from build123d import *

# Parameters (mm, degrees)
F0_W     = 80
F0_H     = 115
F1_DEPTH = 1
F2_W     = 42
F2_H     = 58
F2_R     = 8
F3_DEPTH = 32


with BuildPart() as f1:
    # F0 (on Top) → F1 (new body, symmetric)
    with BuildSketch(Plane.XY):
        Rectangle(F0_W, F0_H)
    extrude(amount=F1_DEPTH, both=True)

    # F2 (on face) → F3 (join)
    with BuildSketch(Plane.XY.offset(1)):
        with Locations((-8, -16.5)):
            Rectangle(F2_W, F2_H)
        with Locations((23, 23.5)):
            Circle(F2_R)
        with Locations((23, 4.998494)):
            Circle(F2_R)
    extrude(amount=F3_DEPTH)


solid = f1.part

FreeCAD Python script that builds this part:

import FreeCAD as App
import Part
import Sketcher
from FreeCAD import Vector


def add_polygon(sketch, points):
    """Adds a closed chain of lines whose ends are joined by coincident constraints."""
    first, n = sketch.GeometryCount, len(points)
    for a, b in zip(points, points[1:] + points[:1]):
        sketch.addGeometry(Part.LineSegment(App.Vector(*a, 0), App.Vector(*b, 0)), False)
    for i in range(n):
        sketch.addConstraint(Sketcher.Constraint("Coincident", first + i, 2, first + (i + 1) % n, 1))

doc = App.newDocument("Part")
body = doc.addObject("PartDesign::Body", "Body")

# Sketch on XY plane
sketch1 = body.newObject("Sketcher::SketchObject", "Sketch")
sketch1.AttachmentSupport = (doc.getObject("XY_Plane"), [""])
sketch1.MapMode = "FlatFace"
add_polygon(sketch1, [(-40, 58), (-40, -58), (40, -58), (40, 58)])  # lines 0-3
sketch1.addConstraint(Sketcher.Constraint("Vertical", 0))
sketch1.addConstraint(Sketcher.Constraint("Horizontal", 1))
sketch1.addConstraint(Sketcher.Constraint("Vertical", 2))
sketch1.addConstraint(Sketcher.Constraint("Horizontal", 3))
sketch1.addConstraint(Sketcher.Constraint("Symmetric", 0, 2, 2, 2, -1, 1))
sketch1.addConstraint(Sketcher.Constraint("DistanceX", 1, 1, 1, 2, 80.0))
sketch1.addConstraint(Sketcher.Constraint("DistanceY", 0, 2, 0, 1, 115.0))
pad1 = body.newObject("PartDesign::Pad", "Pad")
pad1.Profile = sketch1
pad1.Length = 2
pad1.Midplane = True

# Sketch on XY plane
sketch2 = body.newObject("Sketcher::SketchObject", "Sketch001")
sketch2.AttachmentSupport = (doc.getObject("XY_Plane"), [""])
sketch2.MapMode = "FlatFace"
sketch2.AttachmentOffset = App.Placement(Vector(0, 0, 1), App.Rotation())
add_polygon(sketch2, [(-29, 12), (-29, -46), (13, -46), (13, 12)])  # lines 0-3
sketch2.addGeometry(Part.Circle(Vector(23, 24, 0), Vector(0, 0, 1), 8), False)  # 4
sketch2.addGeometry(Part.Circle(Vector(23, 5, 0), Vector(0, 0, 1), 8), False)  # 5
sketch2.addConstraint(Sketcher.Constraint("Vertical", 0))
sketch2.addConstraint(Sketcher.Constraint("Horizontal", 1))
sketch2.addConstraint(Sketcher.Constraint("Vertical", 2))
sketch2.addConstraint(Sketcher.Constraint("Horizontal", 3))
sketch2.addConstraint(Sketcher.Constraint("Equal", 4, 5))
sketch2.addConstraint(Sketcher.Constraint("Vertical", 4, 3, 5, 3))
sketch2.addConstraint(Sketcher.Constraint("Diameter", 4, 16.0))
sketch2.addConstraint(Sketcher.Constraint("DistanceX", 1, 1, 1, 2, 42.0))
sketch2.addConstraint(Sketcher.Constraint("DistanceY", 0, 2, 0, 1, 58.0))
sketch2.addConstraint(Sketcher.Constraint("DistanceX", -1, 1, 4, 3, 23.0))
sketch2.addConstraint(Sketcher.Constraint("DistanceX", 0, 2, -1, 1, 29.0))
sketch2.addConstraint(Sketcher.Constraint("DistanceY", 0, 2, 4, 3, 69.0))
sketch2.addConstraint(Sketcher.Constraint("DistanceY", -1, 1, 4, 3, 23.5))
sketch2.addConstraint(Sketcher.Constraint("DistanceY", -1, 1, 5, 3, 4.998494))
pad2 = body.newObject("PartDesign::Pad", "Pad001")
pad2.Profile = sketch2
pad2.Length = 32

doc.recompute()
